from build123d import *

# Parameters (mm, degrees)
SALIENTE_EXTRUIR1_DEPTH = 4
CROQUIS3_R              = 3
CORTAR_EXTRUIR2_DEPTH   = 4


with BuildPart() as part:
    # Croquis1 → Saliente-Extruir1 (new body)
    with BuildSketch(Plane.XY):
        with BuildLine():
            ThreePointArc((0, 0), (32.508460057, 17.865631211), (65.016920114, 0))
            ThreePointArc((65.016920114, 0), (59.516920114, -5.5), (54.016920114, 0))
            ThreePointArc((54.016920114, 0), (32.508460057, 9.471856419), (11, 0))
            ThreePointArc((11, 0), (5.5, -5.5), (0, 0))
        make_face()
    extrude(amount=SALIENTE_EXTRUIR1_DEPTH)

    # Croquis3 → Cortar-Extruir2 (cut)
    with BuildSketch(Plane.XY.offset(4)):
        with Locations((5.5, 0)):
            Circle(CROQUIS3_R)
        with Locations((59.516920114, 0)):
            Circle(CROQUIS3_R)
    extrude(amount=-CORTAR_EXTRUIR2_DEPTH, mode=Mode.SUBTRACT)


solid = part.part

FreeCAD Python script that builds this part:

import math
import FreeCAD as App
import Part
import Sketcher

V = App.Vector
Q = App.Units.Quantity

doc = App.newDocument("Part")
params = doc.addObject("Spreadsheet::Sheet", "Params")
for row, (alias, value) in enumerate([
    ("sketch1_radius", "5.5 mm"),
    ("pad1_length", "4 mm"),
    ("sketch2_diameter", "6 mm"),
    ("pocket1_length", "4 mm"),
], start=1):
    params.set(f"A{row}", alias)
    params.set(f"B{row}", "=" + value)
    params.setAlias(f"B{row}", alias)

body = doc.addObject("PartDesign::Body", "Body")

sketch1 = body.newObject("Sketcher::SketchObject", "Sketch")
sketch1.AttachmentSupport = (doc.getObject("XY_Plane"), [""])
sketch1.MapMode = "FlatFace"
sketch1.addGeometry(Part.ArcOfCircle(Part.Circle(V(33, -21, 0), V(0, 0, 1), 39), math.radians(32), math.radians(148)), False)
sketch1.addGeometry(Part.ArcOfCircle(Part.Circle(V(6, 0, 0), V(0, 0, 1), 6), math.radians(180), math.radians(360)), False)
sketch1.addGeometry(Part.ArcOfCircle(Part.Circle(V(33, -20, 0), V(0, 0, 1), 29), math.radians(42), math.radians(138)), False)
sketch1.addGeometry(Part.ArcOfCircle(Part.Circle(V(60, 0, 0), V(0, 0, 1), 6), math.radians(180), math.radians(360)), False)
sketch1.addConstraint(Sketcher.Constraint("Coincident", 0, 2, 1, 1))
sketch1.addConstraint(Sketcher.Constraint("Coincident", 1, 2, 2, 2))
sketch1.addConstraint(Sketcher.Constraint("Coincident", 2, 1, 3, 1))
sketch1.addConstraint(Sketcher.Constraint("Coincident", 3, 2, 0, 1))
sketch1.addConstraint(Sketcher.Constraint("Coincident", 0, 2, -1, 1))
sketch1.addConstraint(Sketcher.Constraint("Equal", 1, 3))
sketch1.addConstraint(Sketcher.Constraint("PointOnObject", 1, 3, -1))
sketch1.addConstraint(Sketcher.Constraint("PointOnObject", 3, 3, -1))
sketch1.addConstraint(Sketcher.Constraint("PointOnObject", 1, 2, -1))
sketch1.addConstraint(Sketcher.Constraint("PointOnObject", 2, 1, -1))
sketch1.addConstraint(Sketcher.Constraint("PointOnObject", 3, 2, -1))
sketch1.addConstraint(Sketcher.Constraint("Radius", 1, Q("5.5 mm")))
sketch1.addConstraint(Sketcher.Constraint("Radius", 2, Q("29.156371 mm")))
sketch1.addConstraint(Sketcher.Constraint("Radius", 0, Q("38.509156 mm")))
sketch1.addConstraint(Sketcher.Constraint("DistanceX", -1, 1, 0, 3, Q("32.50846 mm")))
sketch1.setExpression("Constraints[11]", "Params.sketch1_radius")
pad1 = body.newObject("PartDesign::Pad", "Pad")
pad1.Profile = sketch1
pad1.setExpression("Length", "Params.pad1_length")

sketch2 = body.newObject("Sketcher::SketchObject", "Sketch001")
sketch2.AttachmentSupport = (doc.getObject("XY_Plane"), [""])
sketch2.MapMode = "FlatFace"
sketch2.AttachmentOffset = App.Placement(V(0, 0, 4), App.Rotation())
sketch2.addGeometry(Part.Circle(V(5.5, 0, 0), V(0, 0, 1), 3), False)
sketch2.addGeometry(Part.Circle(V(59.5, 0, 0), V(0, 0, 1), 3), False)
sketch2.addConstraint(Sketcher.Constraint("Equal", 0, 1))
sketch2.addConstraint(Sketcher.Constraint("PointOnObject", 0, 3, -1))
sketch2.addConstraint(Sketcher.Constraint("PointOnObject", 1, 3, -1))
sketch2.addConstraint(Sketcher.Constraint("Diameter", 0, Q("6 mm")))
sketch2.addConstraint(Sketcher.Constraint("DistanceX", -1, 1, 0, 3, Q("5.5 mm")))
sketch2.addConstraint(Sketcher.Constraint("DistanceX", -1, 1, 1, 3, Q("59.51692 mm")))
sketch2.setExpression("Constraints[3]", "Params.sketch2_diameter")
pocket1 = body.newObject("PartDesign::Pocket", "Pocket")
pocket1.Profile = sketch2
pocket1.setExpression("Length", "Params.pocket1_length")

doc.recompute()
